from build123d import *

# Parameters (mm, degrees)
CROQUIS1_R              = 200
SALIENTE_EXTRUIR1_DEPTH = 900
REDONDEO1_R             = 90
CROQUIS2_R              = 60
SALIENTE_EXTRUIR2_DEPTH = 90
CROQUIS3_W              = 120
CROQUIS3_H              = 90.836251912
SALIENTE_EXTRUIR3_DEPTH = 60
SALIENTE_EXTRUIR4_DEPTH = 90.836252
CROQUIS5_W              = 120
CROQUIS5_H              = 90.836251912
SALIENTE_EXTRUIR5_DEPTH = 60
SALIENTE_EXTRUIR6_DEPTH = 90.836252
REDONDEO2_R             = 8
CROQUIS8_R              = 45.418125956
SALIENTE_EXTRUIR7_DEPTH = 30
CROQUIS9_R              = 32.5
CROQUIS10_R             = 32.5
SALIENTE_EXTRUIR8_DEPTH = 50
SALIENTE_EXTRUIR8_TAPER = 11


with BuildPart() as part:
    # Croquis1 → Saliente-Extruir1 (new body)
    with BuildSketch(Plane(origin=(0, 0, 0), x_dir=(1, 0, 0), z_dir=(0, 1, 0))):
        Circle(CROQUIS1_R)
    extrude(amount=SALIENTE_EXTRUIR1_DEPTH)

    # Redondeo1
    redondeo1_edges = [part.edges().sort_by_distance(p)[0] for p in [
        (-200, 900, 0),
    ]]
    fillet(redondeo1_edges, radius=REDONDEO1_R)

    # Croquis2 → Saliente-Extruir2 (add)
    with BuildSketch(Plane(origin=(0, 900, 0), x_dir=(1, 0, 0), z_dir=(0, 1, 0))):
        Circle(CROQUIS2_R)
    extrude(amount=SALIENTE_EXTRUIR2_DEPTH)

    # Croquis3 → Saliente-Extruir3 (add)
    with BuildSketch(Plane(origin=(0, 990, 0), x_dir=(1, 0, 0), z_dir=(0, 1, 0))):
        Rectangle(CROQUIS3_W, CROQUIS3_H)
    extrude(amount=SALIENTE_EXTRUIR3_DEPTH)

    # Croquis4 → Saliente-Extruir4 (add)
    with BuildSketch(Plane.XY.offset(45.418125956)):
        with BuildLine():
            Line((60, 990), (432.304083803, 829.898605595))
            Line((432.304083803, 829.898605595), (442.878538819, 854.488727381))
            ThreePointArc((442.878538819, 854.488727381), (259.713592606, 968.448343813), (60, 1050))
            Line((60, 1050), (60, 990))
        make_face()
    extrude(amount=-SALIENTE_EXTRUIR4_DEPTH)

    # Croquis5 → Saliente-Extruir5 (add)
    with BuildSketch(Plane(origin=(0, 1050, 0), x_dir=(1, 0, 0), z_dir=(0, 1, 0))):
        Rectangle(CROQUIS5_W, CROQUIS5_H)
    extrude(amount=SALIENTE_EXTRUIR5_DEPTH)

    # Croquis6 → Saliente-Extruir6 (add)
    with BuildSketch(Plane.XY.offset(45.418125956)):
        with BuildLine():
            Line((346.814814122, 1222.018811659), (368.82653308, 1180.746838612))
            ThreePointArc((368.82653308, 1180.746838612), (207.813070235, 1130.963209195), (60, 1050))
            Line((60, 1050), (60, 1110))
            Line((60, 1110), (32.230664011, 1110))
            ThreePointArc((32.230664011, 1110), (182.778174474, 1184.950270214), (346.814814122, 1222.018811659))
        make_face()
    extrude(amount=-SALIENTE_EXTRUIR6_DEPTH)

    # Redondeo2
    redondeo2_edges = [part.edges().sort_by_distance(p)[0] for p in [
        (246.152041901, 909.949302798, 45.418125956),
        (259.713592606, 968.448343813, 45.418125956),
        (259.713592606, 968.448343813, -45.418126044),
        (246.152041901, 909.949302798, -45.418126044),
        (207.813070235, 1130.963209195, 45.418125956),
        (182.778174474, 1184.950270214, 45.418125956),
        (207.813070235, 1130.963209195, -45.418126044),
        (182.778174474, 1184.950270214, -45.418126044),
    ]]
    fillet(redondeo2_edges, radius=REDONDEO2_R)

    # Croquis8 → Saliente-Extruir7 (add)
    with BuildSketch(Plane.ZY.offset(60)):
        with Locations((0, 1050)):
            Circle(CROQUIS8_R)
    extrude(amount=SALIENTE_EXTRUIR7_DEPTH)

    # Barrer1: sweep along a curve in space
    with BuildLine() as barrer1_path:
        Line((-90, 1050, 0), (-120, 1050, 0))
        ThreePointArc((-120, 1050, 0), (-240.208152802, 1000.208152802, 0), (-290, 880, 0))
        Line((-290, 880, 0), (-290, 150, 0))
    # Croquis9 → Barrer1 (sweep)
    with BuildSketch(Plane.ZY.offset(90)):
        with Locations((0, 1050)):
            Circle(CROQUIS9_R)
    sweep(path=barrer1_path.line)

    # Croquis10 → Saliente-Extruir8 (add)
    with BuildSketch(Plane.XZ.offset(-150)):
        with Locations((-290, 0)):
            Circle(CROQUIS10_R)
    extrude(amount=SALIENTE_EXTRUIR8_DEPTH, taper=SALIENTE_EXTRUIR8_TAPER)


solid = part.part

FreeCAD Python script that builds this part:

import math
import FreeCAD as App
import Part
import Sketcher
Q = App.Units.Quantity


def edges_at(feature, points):
    """Names of the edges that pass closest to the given points."""
    edges = feature.Shape.Edges
    near = lambda p: min(range(len(edges)), key=lambda i: edges[i].distToShape(Part.Vertex(*p))[0])
    return sorted({f"Edge{near(p) + 1}" for p in points})

doc = App.newDocument("Part")
body = doc.addObject("PartDesign::Body", "Body")

# Sketch on XZ plane
sketch1 = doc.addObject("Sketcher::SketchObject", "Sketch")
body.addObject(sketch1)
sketch1.AttachmentSupport = (doc.XZ_Plane, [""])
sketch1.MapMode = "FlatFace"
sketch1.addGeometry(Part.Circle(App.Vector(0, 0, 0), App.Vector(0, 0, 1), 200), False)
sketch1.addConstraint(Sketcher.Constraint("Coincident", 0, 3, -1, 1))
sketch1.addConstraint(Sketcher.Constraint("Diameter", 0, Q("400 mm")))
pad1 = doc.addObject("PartDesign::Pad", "Pad")
body.addObject(pad1)
pad1.Profile = sketch1
pad1.Length = 900
pad1.Reversed = True
doc.recompute()

fillet = doc.addObject("PartDesign::Fillet", "Fillet")
body.addObject(fillet)
fillet.Base = (pad1, edges_at(pad1, [(-200, 900, 0)]))
fillet.Radius = 90

# Sketch on XZ plane
sketch2 = doc.addObject("Sketcher::SketchObject", "Sketch001")
body.addObject(sketch2)
sketch2.AttachmentSupport = (doc.XZ_Plane, [""])
sketch2.MapMode = "FlatFace"
sketch2.AttachmentOffset = App.Placement(App.Vector(0, 0, -900), App.Rotation())
sketch2.addGeometry(Part.Circle(App.Vector(0, 0, 0), App.Vector(0, 0, 1), 60), False)
sketch2.addConstraint(Sketcher.Constraint("Coincident", 0, 3, -1, 1))
sketch2.addConstraint(Sketcher.Constraint("Diameter", 0, Q("120 mm")))
pad2 = doc.addObject("PartDesign::Pad", "Pad001")
body.addObject(pad2)
pad2.Profile = sketch2
pad2.Length = 90
pad2.Reversed = True

# Sketch on XZ plane
sketch3 = doc.addObject("Sketcher::SketchObject", "Sketch002")
body.addObject(sketch3)
sketch3.AttachmentSupport = (doc.XZ_Plane, [""])
sketch3.MapMode = "FlatFace"
sketch3.AttachmentOffset = App.Placement(App.Vector(0, 0, -990), App.Rotation())
sketch3.addGeometry(Part.LineSegment(App.Vector(-60, -45, 0), App.Vector(-60, 45, 0)), False)
sketch3.addGeometry(Part.LineSegment(App.Vector(-60, 45, 0), App.Vector(60, 45, 0)), False)
sketch3.addGeometry(Part.LineSegment(App.Vector(60, 45, 0), App.Vector(60, -45, 0)), False)
sketch3.addGeometry(Part.LineSegment(App.Vector(60, -45, 0), App.Vector(-60, -45, 0)), False)
sketch3.addConstraint(Sketcher.Constraint("Coincident", 0, 2, 1, 1))
sketch3.addConstraint(Sketcher.Constraint("Coincident", 1, 2, 2, 1))
sketch3.addConstraint(Sketcher.Constraint("Coincident", 2, 2, 3, 1))
sketch3.addConstraint(Sketcher.Constraint("Coincident", 3, 2, 0, 1))
sketch3.addConstraint(Sketcher.Constraint("Vertical", 0))
sketch3.addConstraint(Sketcher.Constraint("Horizontal", 1))
sketch3.addConstraint(Sketcher.Constraint("Vertical", 2))
sketch3.addConstraint(Sketcher.Constraint("Horizontal", 3))
sketch3.addConstraint(Sketcher.Constraint("Symmetric", 0, 2, 2, 2, -1, 1))
sketch3.addConstraint(Sketcher.Constraint("DistanceX", 1, 1, 1, 2, Q("120 mm")))
sketch3.addConstraint(Sketcher.Constraint("DistanceY", 0, 1, 0, 2, Q("90.836252 mm")))
pad3 = doc.addObject("PartDesign::Pad", "Pad002")
body.addObject(pad3)
pad3.Profile = sketch3
pad3.Length = 60
pad3.Reversed = True

# Sketch on XY plane
sketch4 = doc.addObject("Sketcher::SketchObject", "Sketch003")
body.addObject(sketch4)
sketch4.AttachmentSupport = (doc.XY_Plane, [""])
sketch4.MapMode = "FlatFace"
sketch4.AttachmentOffset = App.Placement(App.Vector(0, 0, 45.418126), App.Rotation())
sketch4.addGeometry(Part.LineSegment(App.Vector(60, 990, 0), App.Vector(432, 830, 0)), False)
sketch4.addGeometry(Part.LineSegment(App.Vector(432, 830, 0), App.Vector(443, 854, 0)), False)
sketch4.addGeometry(Part.ArcOfCircle(Part.Circle(App.Vector(-322, -171, 0), App.Vector(0, 0, 1), 1279), math.radians(53.27), math.radians(72.63)), False)
sketch4.addGeometry(Part.LineSegment(App.Vector(60, 1050, 0), App.Vector(60, 990, 0)), False)
sketch4.addConstraint(Sketcher.Constraint("Coincident", 0, 2, 1, 1))
sketch4.addConstraint(Sketcher.Constraint("Coincident", 1, 2, 2, 1))
sketch4.addConstraint(Sketcher.Constraint("Coincident", 2, 2, 3, 1))
sketch4.addConstraint(Sketcher.Constraint("Coincident", 3, 2, 0, 1))
sketch4.addConstraint(Sketcher.Constraint("Vertical", 3))
sketch4.addConstraint(Sketcher.Constraint("Perpendicular", 0, 1))
sketch4.addConstraint(Sketcher.Constraint("DistanceY", 3, 2, 3, 1, Q("60 mm")))
sketch4.addConstraint(Sketcher.Constraint("DistanceX", -1, 1, 3, 2, Q("60 mm")))
sketch4.addConstraint(Sketcher.Constraint("DistanceY", -1, 1, 3, 2, Q("990 mm")))
sketch4.addConstraint(Sketcher.Constraint("Radius", 2, Q("1278.8657 mm")))
sketch4.addConstraint(Sketcher.Constraint("DistanceY", 2, 3, 0, 2, Q("1000.4162 mm")))
sketch4.addConstraint(Sketcher.Constraint("Distance", 1, Q("26.76739 mm")))
sketch4.addConstraint(Sketcher.Constraint("DistanceX", -1, 1, 1, 2, Q("442.878539 mm")))
pad4 = doc.addObject("PartDesign::Pad", "Pad003")
body.addObject(pad4)
pad4.Profile = sketch4
pad4.Length = 90.836252
pad4.Reversed = True

# Sketch on XZ plane
sketch5 = doc.addObject("Sketcher::SketchObject", "Sketch004")
body.addObject(sketch5)
sketch5.AttachmentSupport = (doc.XZ_Plane, [""])
sketch5.MapMode = "FlatFace"
sketch5.AttachmentOffset = App.Placement(App.Vector(0, 0, -1050), App.Rotation())
sketch5.addGeometry(Part.LineSegment(App.Vector(-60, -45, 0), App.Vector(-60, 45, 0)), False)
sketch5.addGeometry(Part.LineSegment(App.Vector(-60, 45, 0), App.Vector(60, 45, 0)), False)
sketch5.addGeometry(Part.LineSegment(App.Vector(60, 45, 0), App.Vector(60, -45, 0)), False)
sketch5.addGeometry(Part.LineSegment(App.Vector(60, -45, 0), App.Vector(-60, -45, 0)), False)
sketch5.addConstraint(Sketcher.Constraint("Coincident", 0, 2, 1, 1))
sketch5.addConstraint(Sketcher.Constraint("Coincident", 1, 2, 2, 1))
sketch5.addConstraint(Sketcher.Constraint("Coincident", 2, 2, 3, 1))
sketch5.addConstraint(Sketcher.Constraint("Coincident", 3, 2, 0, 1))
sketch5.addConstraint(Sketcher.Constraint("Vertical", 0))
sketch5.addConstraint(Sketcher.Constraint("Horizontal", 1))
sketch5.addConstraint(Sketcher.Constraint("Vertical", 2))
sketch5.addConstraint(Sketcher.Constraint("Horizontal", 3))
sketch5.addConstraint(Sketcher.Constraint("Symmetric", 0, 2, 2, 2, -1, 1))
sketch5.addConstraint(Sketcher.Constraint("DistanceX", 1, 1, 1, 2, Q("120 mm")))
sketch5.addConstraint(Sketcher.Constraint("DistanceY", 0, 1, 0, 2, Q("90.836252 mm")))
pad5 = doc.addObject("PartDesign::Pad", "Pad004")
body.addObject(pad5)
pad5.Profile = sketch5
pad5.Length = 60
pad5.Reversed = True

# Sketch on XY plane
sketch6 = doc.addObject("Sketcher::SketchObject", "Sketch005")
body.addObject(sketch6)
sketch6.AttachmentSupport = (doc.XY_Plane, [""])
sketch6.MapMode = "FlatFace"
sketch6.AttachmentOffset = App.Placement(App.Vector(0, 0, 45.418126), App.Rotation())
sketch6.addGeometry(Part.LineSegment(App.Vector(369, 1181, 0), App.Vector(347, 1222, 0)), False)
sketch6.addGeometry(Part.ArcOfCircle(Part.Circle(App.Vector(419, 522, 0), App.Vector(0, 0, 1), 703), math.radians(96), math.radians(123)), False)
sketch6.addGeometry(Part.LineSegment(App.Vector(32, 1110, 0), App.Vector(60, 1110, 0)), False)
sketch6.addGeometry(Part.LineSegment(App.Vector(60, 1110, 0), App.Vector(60, 1050, 0)), False)
sketch6.addGeometry(Part.ArcOfCircle(Part.Circle(App.Vector(535, 358, 0), App.Vector(0, 0, 1), 839), math.radians(101), math.radians(124)), False)
sketch6.addConstraint(Sketcher.Constraint("Coincident", 0, 2, 1, 1))
sketch6.addConstraint(Sketcher.Constraint("Coincident", 1, 2, 2, 1))
sketch6.addConstraint(Sketcher.Constraint("Coincident", 2, 2, 3, 1))
sketch6.addConstraint(Sketcher.Constraint("Coincident", 3, 2, 4, 2))
sketch6.addConstraint(Sketcher.Constraint("Coincident", 4, 1, 0, 1))
sketch6.addConstraint(Sketcher.Constraint("Horizontal", 2))
sketch6.addConstraint(Sketcher.Constraint("Vertical", 3))
sketch6.addConstraint(Sketcher.Constraint("DistanceY", 3, 2, 3, 1, Q("60 mm")))
sketch6.addConstraint(Sketcher.Constraint("DistanceX", -1, 1, 2, 2, Q("60 mm")))
sketch6.addConstraint(Sketcher.Constraint("DistanceY", -1, 1, 2, 2, Q("1110 mm")))
sketch6.addConstraint(Sketcher.Constraint("Radius", 1, Q("703.329771 mm")))
sketch6.addConstraint(Sketcher.Constraint("Radius", 4, Q("838.888767 mm")))
sketch6.addConstraint(Sketcher.Constraint("DistanceX", 2, 1, 2, 2, Q("27.769336 mm")))
sketch6.addConstraint(Sketcher.Constraint("DistanceY", -1, 1, 4, 3, Q("358.454452 mm")))
sketch6.addConstraint(Sketcher.Constraint("DistanceY", -1, 1, 0, 2, Q("1222.018812 mm")))
sketch6.addConstraint(Sketcher.Constraint("DistanceX", 0, 2, 1, 3, Q("71.897248 mm")))
sketch6.addConstraint(Sketcher.Constraint("Distance", 0, Q("46.774903 mm")))
pad6 = doc.addObject("PartDesign::Pad", "Pad005")
body.addObject(pad6)
pad6.Profile = sketch6
pad6.Length = 90.836252
pad6.Reversed = True
doc.recompute()

fillet2 = doc.addObject("PartDesign::Fillet", "Fillet001")
body.addObject(fillet2)
fillet2.Base = (pad6, edges_at(pad6, [
    (246.152, 909.949, 45.418),
    (259.714, 968.448, 45.418),
    (259.714, 968.448, -45.418),
    (246.152, 909.949, -45.418),
    (207.813, 1130.963, 45.418),
    (182.778, 1184.95, 45.418),
    (207.813, 1130.963, -45.418),
    (182.778, 1184.95, -45.418),
]))
fillet2.Radius = 8

# Sketch on YZ plane
sketch7 = doc.addObject("Sketcher::SketchObject", "Sketch006")
body.addObject(sketch7)
sketch7.AttachmentSupport = (doc.YZ_Plane, [""])
sketch7.MapMode = "FlatFace"
sketch7.AttachmentOffset = App.Placement(App.Vector(0, 0, -60), App.Rotation())
sketch7.addGeometry(Part.Circle(App.Vector(1050, 0, 0), App.Vector(0, 0, 1), 45), False)
sketch7.addConstraint(Sketcher.Constraint("PointOnObject", 0, 3, -1))
sketch7.addConstraint(Sketcher.Constraint("DistanceX", -1, 1, 0, 3, Q("1050 mm")))
sketch7.addConstraint(Sketcher.Constraint("Diameter", 0, Q("90.836252 mm")))
pad7 = doc.addObject("PartDesign::Pad", "Pad006")
body.addObject(pad7)
pad7.Profile = sketch7
pad7.Length = 30
pad7.Reversed = True

# Sketch on YZ plane
sketch8 = doc.addObject("Sketcher::SketchObject", "Sketch007")
body.addObject(sketch8)
sketch8.AttachmentSupport = (doc.YZ_Plane, [""])
sketch8.MapMode = "FlatFace"
sketch8.AttachmentOffset = App.Placement(App.Vector(0, 0, -90), App.Rotation())
sketch8.addGeometry(Part.Circle(App.Vector(1050, 0, 0), App.Vector(0, 0, 1), 32), False)
sketch8.addConstraint(Sketcher.Constraint("PointOnObject", 0, 3, -1))
sketch8.addConstraint(Sketcher.Constraint("Diameter", 0, Q("65 mm")))
sketch8.addConstraint(Sketcher.Constraint("DistanceX", -1, 1, 0, 3, Q("1050 mm")))

# Sketch on XY plane
sketch9 = doc.addObject("Sketcher::SketchObject", "Sketch008")
body.addObject(sketch9)
sketch9.AttachmentSupport = (doc.XY_Plane, [""])
sketch9.MapMode = "FlatFace"
sketch9.addGeometry(Part.LineSegment(App.Vector(-90, 1050, 0), App.Vector(-120, 1050, 0)), False)
sketch9.addGeometry(Part.ArcOfCircle(Part.Circle(App.Vector(-120, 880, 0), App.Vector(0, 0, 1), 170), math.radians(90), math.radians(180)), False)
sketch9.addGeometry(Part.LineSegment(App.Vector(-290, 880, 0), App.Vector(-290, 150, 0)), False)
sketch9.addConstraint(Sketcher.Constraint("Tangent", 0, 2, 1, 1))
sketch9.addConstraint(Sketcher.Constraint("Tangent", 1, 2, 2, 1))
sketch9.addConstraint(Sketcher.Constraint("Horizontal", 0))
sketch9.addConstraint(Sketcher.Constraint("Vertical", 2))
sketch9.addConstraint(Sketcher.Constraint("Radius", 1, Q("170 mm")))
sketch9.addConstraint(Sketcher.Constraint("DistanceX", 0, 2, 0, 1, Q("30 mm")))
sketch9.addConstraint(Sketcher.Constraint("DistanceY", 2, 2, 2, 1, Q("730 mm")))
sketch9.addConstraint(Sketcher.Constraint("DistanceX", 1, 3, -1, 1, Q("120 mm")))
sketch9.addConstraint(Sketcher.Constraint("DistanceY", -1, 1, 1, 3, Q("880 mm")))
doc.recompute()

additivepipe = doc.addObject("PartDesign::AdditivePipe", "AdditivePipe")
body.addObject(additivepipe)
additivepipe.Profile = sketch8
additivepipe.Spine = (sketch9, ["Edge1", "Edge2", "Edge3"])

# Sketch on XZ plane
sketch10 = doc.addObject("Sketcher::SketchObject", "Sketch009")
body.addObject(sketch10)
sketch10.AttachmentSupport = (doc.XZ_Plane, [""])
sketch10.MapMode = "FlatFace"
sketch10.AttachmentOffset = App.Placement(App.Vector(0, 0, -150), App.Rotation())
sketch10.addGeometry(Part.Circle(App.Vector(-290, 0, 0), App.Vector(0, 0, 1), 32), False)
sketch10.addConstraint(Sketcher.Constraint("PointOnObject", 0, 3, -1))
sketch10.addConstraint(Sketcher.Constraint("Diameter", 0, Q("65 mm")))
sketch10.addConstraint(Sketcher.Constraint("DistanceX", 0, 3, -1, 1, Q("290 mm")))
pad8 = doc.addObject("PartDesign::Pad", "Pad007")
body.addObject(pad8)
pad8.Profile = sketch10
pad8.Length = 50
pad8.TaperAngle = -11

doc.recompute()
